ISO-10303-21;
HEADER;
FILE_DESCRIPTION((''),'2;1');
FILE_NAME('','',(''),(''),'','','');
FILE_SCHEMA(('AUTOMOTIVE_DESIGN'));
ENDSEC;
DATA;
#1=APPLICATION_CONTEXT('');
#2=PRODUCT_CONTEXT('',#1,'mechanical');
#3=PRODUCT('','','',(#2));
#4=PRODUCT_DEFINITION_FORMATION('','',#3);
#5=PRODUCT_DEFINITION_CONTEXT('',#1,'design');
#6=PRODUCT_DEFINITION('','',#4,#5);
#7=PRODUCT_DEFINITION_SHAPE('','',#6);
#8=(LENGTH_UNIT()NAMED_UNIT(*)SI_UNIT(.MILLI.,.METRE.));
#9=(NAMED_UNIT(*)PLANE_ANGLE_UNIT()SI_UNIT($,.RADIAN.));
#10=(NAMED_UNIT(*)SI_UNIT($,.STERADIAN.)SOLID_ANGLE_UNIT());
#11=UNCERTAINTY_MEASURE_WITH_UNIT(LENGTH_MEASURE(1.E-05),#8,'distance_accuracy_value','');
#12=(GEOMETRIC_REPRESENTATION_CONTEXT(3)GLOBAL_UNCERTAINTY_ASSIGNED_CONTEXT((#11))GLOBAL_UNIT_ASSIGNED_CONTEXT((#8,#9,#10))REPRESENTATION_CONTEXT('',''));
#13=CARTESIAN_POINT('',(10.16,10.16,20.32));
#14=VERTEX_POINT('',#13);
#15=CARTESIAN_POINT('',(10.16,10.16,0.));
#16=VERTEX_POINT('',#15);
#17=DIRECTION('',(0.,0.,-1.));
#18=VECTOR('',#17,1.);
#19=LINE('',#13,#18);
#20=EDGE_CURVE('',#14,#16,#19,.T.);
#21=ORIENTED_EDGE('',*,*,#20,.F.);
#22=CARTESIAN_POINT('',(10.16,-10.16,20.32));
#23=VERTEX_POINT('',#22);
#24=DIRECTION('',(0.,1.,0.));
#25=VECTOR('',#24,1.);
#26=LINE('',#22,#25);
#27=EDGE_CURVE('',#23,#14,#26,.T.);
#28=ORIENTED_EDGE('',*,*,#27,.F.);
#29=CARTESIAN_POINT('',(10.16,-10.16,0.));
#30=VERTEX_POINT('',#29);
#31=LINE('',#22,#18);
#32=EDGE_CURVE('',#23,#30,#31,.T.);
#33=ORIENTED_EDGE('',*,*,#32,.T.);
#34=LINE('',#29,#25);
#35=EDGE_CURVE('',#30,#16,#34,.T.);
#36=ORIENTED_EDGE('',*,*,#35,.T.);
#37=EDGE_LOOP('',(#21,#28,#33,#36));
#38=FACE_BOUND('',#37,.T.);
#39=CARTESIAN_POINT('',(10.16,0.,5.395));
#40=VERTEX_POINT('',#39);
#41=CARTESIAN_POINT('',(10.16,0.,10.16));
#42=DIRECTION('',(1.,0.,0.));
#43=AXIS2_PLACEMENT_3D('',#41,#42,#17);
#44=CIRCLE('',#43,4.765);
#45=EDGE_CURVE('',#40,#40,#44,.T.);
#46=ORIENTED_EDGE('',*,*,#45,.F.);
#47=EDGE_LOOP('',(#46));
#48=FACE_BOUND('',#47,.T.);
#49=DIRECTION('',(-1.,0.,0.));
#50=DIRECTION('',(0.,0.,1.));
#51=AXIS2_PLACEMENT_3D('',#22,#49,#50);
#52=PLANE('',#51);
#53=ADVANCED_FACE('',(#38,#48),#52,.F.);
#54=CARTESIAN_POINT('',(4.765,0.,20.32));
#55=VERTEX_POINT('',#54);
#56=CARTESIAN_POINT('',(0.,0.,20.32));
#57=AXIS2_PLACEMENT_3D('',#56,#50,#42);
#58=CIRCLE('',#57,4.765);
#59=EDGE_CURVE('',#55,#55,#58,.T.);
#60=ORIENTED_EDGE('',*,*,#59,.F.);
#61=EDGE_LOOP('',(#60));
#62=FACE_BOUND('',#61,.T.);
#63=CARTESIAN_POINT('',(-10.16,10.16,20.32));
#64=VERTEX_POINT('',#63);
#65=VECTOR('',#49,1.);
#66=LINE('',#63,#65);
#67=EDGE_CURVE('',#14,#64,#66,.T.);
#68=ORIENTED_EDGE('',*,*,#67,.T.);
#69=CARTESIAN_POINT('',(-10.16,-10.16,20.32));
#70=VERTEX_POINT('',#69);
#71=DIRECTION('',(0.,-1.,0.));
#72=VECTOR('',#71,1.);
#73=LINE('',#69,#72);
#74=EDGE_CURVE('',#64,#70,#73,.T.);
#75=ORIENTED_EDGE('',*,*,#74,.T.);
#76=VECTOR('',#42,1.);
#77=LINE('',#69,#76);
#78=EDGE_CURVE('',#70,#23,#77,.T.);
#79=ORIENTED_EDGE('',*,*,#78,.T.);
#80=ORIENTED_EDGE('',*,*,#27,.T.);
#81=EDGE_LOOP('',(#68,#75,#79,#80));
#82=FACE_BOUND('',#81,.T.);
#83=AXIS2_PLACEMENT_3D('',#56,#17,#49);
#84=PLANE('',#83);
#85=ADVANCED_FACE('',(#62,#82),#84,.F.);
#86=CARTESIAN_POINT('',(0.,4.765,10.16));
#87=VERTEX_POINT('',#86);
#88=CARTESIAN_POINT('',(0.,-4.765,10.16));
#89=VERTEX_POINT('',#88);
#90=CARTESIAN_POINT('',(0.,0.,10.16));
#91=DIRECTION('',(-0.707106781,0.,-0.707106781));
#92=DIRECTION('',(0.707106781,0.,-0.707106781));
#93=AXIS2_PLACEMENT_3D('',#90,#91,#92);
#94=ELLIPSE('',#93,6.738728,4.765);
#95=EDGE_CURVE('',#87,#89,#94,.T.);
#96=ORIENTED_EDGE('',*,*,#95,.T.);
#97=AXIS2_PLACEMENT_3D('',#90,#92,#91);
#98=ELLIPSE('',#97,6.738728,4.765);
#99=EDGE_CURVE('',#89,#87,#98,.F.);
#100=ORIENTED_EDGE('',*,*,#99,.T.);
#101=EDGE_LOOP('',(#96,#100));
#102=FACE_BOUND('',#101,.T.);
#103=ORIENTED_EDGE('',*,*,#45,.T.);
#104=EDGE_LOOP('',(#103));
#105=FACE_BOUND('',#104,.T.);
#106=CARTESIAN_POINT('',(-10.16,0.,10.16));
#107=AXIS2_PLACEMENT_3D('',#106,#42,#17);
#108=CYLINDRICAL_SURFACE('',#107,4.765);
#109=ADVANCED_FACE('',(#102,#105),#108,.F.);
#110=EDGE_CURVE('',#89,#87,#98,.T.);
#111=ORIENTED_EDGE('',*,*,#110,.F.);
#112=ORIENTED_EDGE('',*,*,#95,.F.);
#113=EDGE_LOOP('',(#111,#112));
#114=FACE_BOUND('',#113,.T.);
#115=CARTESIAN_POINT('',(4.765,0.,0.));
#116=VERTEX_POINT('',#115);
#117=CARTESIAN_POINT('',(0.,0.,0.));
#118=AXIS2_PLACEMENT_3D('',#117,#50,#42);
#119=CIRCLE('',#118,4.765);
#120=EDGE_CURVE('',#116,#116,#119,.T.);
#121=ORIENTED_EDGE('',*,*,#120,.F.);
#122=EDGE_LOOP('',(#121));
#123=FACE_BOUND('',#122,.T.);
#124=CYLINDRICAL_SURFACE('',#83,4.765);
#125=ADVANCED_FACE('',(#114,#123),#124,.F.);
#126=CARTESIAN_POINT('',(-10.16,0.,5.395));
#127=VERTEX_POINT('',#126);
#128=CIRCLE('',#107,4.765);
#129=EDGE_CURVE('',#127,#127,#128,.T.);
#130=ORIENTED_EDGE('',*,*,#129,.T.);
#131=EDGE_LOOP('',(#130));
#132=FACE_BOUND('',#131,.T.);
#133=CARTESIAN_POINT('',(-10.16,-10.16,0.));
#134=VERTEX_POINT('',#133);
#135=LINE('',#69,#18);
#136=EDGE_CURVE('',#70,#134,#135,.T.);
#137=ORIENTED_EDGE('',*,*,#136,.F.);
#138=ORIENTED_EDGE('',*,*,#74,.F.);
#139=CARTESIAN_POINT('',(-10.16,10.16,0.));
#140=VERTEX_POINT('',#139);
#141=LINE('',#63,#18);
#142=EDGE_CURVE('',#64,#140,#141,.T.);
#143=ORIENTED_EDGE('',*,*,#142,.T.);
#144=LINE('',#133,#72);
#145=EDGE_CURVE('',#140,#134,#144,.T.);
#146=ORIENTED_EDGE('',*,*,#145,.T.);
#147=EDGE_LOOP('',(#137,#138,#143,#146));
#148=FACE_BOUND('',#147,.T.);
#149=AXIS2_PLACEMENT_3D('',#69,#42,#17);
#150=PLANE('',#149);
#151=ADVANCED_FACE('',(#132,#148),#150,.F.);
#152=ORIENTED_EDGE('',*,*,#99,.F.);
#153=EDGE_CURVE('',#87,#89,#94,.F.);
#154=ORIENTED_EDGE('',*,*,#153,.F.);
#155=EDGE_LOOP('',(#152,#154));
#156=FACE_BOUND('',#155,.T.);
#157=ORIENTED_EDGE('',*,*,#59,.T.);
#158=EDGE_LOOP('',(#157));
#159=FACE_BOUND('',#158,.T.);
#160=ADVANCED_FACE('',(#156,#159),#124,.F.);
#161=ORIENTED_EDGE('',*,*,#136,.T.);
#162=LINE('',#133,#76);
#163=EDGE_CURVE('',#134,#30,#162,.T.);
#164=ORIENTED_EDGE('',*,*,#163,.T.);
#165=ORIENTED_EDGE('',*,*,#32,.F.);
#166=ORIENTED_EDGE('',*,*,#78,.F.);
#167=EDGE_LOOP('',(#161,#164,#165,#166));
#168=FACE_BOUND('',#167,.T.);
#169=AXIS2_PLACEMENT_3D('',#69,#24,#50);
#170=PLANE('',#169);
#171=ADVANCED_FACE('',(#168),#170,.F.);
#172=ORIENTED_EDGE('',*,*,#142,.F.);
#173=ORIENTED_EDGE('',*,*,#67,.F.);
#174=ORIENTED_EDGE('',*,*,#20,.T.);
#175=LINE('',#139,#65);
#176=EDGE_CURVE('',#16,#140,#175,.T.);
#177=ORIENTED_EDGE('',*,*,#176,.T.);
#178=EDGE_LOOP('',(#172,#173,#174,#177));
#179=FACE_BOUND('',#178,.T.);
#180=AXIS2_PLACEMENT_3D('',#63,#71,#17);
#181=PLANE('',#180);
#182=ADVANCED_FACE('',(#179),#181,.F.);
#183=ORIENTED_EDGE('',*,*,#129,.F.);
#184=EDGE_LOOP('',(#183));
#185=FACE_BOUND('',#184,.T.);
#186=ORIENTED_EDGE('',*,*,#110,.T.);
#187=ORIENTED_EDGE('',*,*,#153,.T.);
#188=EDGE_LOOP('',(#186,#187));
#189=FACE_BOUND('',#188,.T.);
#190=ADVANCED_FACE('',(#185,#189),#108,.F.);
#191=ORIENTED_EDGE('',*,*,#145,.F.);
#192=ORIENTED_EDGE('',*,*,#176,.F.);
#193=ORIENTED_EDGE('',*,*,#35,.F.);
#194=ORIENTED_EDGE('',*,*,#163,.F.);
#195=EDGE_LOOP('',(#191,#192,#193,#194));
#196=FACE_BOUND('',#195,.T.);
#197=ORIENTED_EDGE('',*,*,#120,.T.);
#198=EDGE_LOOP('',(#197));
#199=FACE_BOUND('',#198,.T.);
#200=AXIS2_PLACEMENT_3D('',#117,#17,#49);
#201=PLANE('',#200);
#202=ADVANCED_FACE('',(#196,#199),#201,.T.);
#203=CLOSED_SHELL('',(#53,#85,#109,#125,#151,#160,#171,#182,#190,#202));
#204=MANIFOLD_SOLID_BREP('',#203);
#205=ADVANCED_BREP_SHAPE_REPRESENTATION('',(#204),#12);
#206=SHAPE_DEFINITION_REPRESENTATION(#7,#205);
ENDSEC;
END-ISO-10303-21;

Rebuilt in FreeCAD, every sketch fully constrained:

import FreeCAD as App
import Part
import Sketcher
from FreeCAD import Vector
Q = App.Units.Quantity

doc = App.newDocument("Part")
body = doc.addObject("PartDesign::Body", "Body")

# Sketch on XY plane
sketch1 = doc.addObject("Sketcher::SketchObject", "Sketch")
body.addObject(sketch1)
sketch1.AttachmentSupport = (doc.XY_Plane, [""])
sketch1.MapMode = "FlatFace"
sketch1.addGeometry([
    Part.LineSegment(Vector(-10.2, 10.2, 0), Vector(-10.2, -10.2, 0)),  # 0
    Part.LineSegment(Vector(-10.2, -10.2, 0), Vector(10.2, -10.2, 0)),  # 1
    Part.LineSegment(Vector(10.2, -10.2, 0), Vector(10.2, 10.2, 0)),  # 2
    Part.LineSegment(Vector(10.2, 10.2, 0), Vector(-10.2, 10.2, 0)),  # 3
    Part.Circle(Vector(0, 0, 0), Vector(0, 0, 1), 4.8),  # 4
], False)
sketch1.addConstraint([
    Sketcher.Constraint("Coincident", 0, 2, 1, 1),
    Sketcher.Constraint("Coincident", 1, 2, 2, 1),
    Sketcher.Constraint("Coincident", 2, 2, 3, 1),
    Sketcher.Constraint("Coincident", 3, 2, 0, 1),
    Sketcher.Constraint("Vertical", 0),
    Sketcher.Constraint("Horizontal", 1),
    Sketcher.Constraint("Vertical", 2),
    Sketcher.Constraint("Horizontal", 3),
    Sketcher.Constraint("Coincident", 4, 3, -1, 1),
    Sketcher.Constraint("Symmetric", 0, 2, 2, 2, -1, 1),
    Sketcher.Constraint("Equal", 3, 0),
    Sketcher.Constraint("DistanceX", 1, 1, 1, 2, Q("0.8 in")),
    Sketcher.Constraint("Diameter", 4, Q("9.53 mm")),
])
pad1 = doc.addObject("PartDesign::Pad", "Pad")
body.addObject(pad1)
pad1.Profile = sketch1
pad1.Length = Q("0.8 in")

# Sketch on YZ plane
sketch2 = doc.addObject("Sketcher::SketchObject", "Sketch001")
body.addObject(sketch2)
sketch2.AttachmentSupport = (doc.YZ_Plane, [""])
sketch2.MapMode = "FlatFace"
sketch2.addGeometry(Part.Circle(Vector(0, 10.2, 0), Vector(0, 0, 1), 4.8), False)
sketch2.addConstraint([
    Sketcher.Constraint("PointOnObject", 0, 3, -2),
    Sketcher.Constraint("DistanceY", -1, 1, 0, 3, Q("0.4 in")),
    Sketcher.Constraint("Diameter", 0, Q("9.53 mm")),
])
pocket1 = doc.addObject("PartDesign::Pocket", "Pocket")
body.addObject(pocket1)
pocket1.Profile = sketch2
pocket1.Type = "ThroughAll"
pocket1.Midplane = True

doc.recompute()
